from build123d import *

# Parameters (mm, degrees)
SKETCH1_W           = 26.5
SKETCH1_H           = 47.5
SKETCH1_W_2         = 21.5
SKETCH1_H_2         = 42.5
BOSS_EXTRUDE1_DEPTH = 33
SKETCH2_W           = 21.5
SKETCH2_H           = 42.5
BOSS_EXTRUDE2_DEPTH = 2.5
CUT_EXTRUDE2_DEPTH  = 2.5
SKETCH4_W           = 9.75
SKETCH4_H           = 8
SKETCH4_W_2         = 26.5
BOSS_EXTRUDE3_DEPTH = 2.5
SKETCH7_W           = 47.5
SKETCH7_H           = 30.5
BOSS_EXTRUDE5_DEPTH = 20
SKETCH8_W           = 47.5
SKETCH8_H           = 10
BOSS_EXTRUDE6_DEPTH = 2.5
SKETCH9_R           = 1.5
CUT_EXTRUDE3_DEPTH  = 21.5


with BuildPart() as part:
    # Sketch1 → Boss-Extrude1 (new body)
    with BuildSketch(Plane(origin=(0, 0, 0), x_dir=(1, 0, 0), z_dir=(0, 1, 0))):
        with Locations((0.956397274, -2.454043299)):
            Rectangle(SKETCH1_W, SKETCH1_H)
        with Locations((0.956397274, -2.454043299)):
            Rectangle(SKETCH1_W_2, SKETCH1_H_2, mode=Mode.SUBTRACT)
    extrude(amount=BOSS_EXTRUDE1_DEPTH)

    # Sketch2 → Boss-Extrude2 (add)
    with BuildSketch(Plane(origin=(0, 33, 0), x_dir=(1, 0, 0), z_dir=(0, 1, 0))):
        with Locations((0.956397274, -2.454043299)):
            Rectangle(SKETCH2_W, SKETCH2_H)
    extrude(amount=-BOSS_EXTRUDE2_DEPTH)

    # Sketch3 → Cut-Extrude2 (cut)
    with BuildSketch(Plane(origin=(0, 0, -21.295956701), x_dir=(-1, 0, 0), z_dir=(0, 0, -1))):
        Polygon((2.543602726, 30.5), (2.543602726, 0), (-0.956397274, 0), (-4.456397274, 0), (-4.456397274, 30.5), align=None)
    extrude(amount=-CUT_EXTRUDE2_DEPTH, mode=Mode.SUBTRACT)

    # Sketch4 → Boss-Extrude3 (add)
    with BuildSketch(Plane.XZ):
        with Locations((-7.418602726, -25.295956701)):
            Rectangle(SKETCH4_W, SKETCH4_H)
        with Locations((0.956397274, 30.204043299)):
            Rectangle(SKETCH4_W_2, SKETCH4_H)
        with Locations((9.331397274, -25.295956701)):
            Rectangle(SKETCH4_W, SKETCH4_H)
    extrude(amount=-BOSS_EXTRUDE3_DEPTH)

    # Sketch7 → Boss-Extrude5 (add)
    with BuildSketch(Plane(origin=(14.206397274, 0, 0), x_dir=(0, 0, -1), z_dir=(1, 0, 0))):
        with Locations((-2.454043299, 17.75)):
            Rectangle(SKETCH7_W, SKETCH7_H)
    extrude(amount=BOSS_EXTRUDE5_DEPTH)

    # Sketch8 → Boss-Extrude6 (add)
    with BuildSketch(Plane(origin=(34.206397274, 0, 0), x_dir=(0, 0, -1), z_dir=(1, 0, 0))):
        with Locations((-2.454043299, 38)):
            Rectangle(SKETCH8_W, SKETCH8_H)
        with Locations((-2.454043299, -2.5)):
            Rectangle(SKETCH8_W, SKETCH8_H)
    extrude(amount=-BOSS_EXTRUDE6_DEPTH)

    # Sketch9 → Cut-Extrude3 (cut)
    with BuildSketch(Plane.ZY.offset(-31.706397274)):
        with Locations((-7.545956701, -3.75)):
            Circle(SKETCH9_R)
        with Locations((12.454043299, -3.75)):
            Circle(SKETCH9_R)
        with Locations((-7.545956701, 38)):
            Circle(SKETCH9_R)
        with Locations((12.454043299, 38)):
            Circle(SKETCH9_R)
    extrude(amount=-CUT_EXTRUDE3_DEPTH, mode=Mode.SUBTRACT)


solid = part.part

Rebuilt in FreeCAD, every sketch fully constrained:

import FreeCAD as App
import Part
import Sketcher
from FreeCAD import Vector
Q = App.Units.Quantity


def add_polygon(sketch, points):
    """Adds a closed chain of lines whose ends are joined by coincident constraints."""
    first, n = sketch.GeometryCount, len(points)
    for a, b in zip(points, points[1:] + points[:1]):
        sketch.addGeometry(Part.LineSegment(App.Vector(*a, 0), App.Vector(*b, 0)), False)
    for i in range(n):
        sketch.addConstraint(Sketcher.Constraint("Coincident", first + i, 2, first + (i + 1) % n, 1))

doc = App.newDocument("Part")
body = doc.addObject("PartDesign::Body", "Body")

sketch1 = doc.addObject("Sketcher::SketchObject", "Sketch")
body.addObject(sketch1)
sketch1.AttachmentSupport = (doc.XZ_Plane, [""])
sketch1.MapMode = "FlatFace"
add_polygon(sketch1, [(-12.293603, -21.295957), (-12.293603, 26.204043), (14.206397, 26.204043), (14.206397, -21.295957)])
add_polygon(sketch1, [(11.706397, 23.704043), (-9.793603, 23.704043), (-9.793603, -18.795957), (11.706397, -18.795957)])
sketch1.addConstraint(Sketcher.Constraint("Vertical", 0))
sketch1.addConstraint(Sketcher.Constraint("Horizontal", 1))
sketch1.addConstraint(Sketcher.Constraint("Vertical", 2))
sketch1.addConstraint(Sketcher.Constraint("Horizontal", 3))
sketch1.addConstraint(Sketcher.Constraint("Horizontal", 4))
sketch1.addConstraint(Sketcher.Constraint("Vertical", 5))
sketch1.addConstraint(Sketcher.Constraint("Horizontal", 6))
sketch1.addConstraint(Sketcher.Constraint("Vertical", 7))
sketch1.addConstraint(Sketcher.Constraint("DistanceX", 1, 1, 1, 2, Q("26.5 mm")))
sketch1.addConstraint(Sketcher.Constraint("DistanceX", 4, 2, 4, 1, Q("21.5 mm")))
sketch1.addConstraint(Sketcher.Constraint("DistanceY", 0, 1, 0, 2, Q("47.5 mm")))
sketch1.addConstraint(Sketcher.Constraint("DistanceY", 5, 2, 5, 1, Q("42.5 mm")))
sketch1.addConstraint(Sketcher.Constraint("DistanceX", 4, 2, 1, 2, Q("24 mm")))
sketch1.addConstraint(Sketcher.Constraint("DistanceY", 3, 2, 4, 2, Q("45 mm")))
sketch1.addConstraint(Sketcher.Constraint("DistanceX", 0, 2, -1, 1, Q("12.293603 mm")))
sketch1.addConstraint(Sketcher.Constraint("DistanceY", -1, 1, 0, 2, Q("26.204043 mm")))
pad1 = doc.addObject("PartDesign::Pad", "Pad")
body.addObject(pad1)
pad1.Profile = sketch1
pad1.Length = 33
pad1.Reversed = True

sketch2 = doc.addObject("Sketcher::SketchObject", "Sketch001")
body.addObject(sketch2)
sketch2.AttachmentSupport = (doc.XZ_Plane, [""])
sketch2.MapMode = "FlatFace"
sketch2.AttachmentOffset = App.Placement(Vector(0, 0, -33), App.Rotation())
add_polygon(sketch2, [(-9.793603, -18.795957), (-9.793603, 23.704043), (11.706397, 23.704043), (11.706397, -18.795957)])
sketch2.addConstraint(Sketcher.Constraint("Vertical", 0))
sketch2.addConstraint(Sketcher.Constraint("Horizontal", 1))
sketch2.addConstraint(Sketcher.Constraint("Vertical", 2))
sketch2.addConstraint(Sketcher.Constraint("Horizontal", 3))
sketch2.addConstraint(Sketcher.Constraint("DistanceX", 1, 1, 1, 2, Q("21.5 mm")))
sketch2.addConstraint(Sketcher.Constraint("DistanceY", 0, 1, 0, 2, Q("42.5 mm")))
sketch2.addConstraint(Sketcher.Constraint("DistanceX", 0, 2, -1, 1, Q("9.793603 mm")))
sketch2.addConstraint(Sketcher.Constraint("DistanceY", -1, 1, 0, 2, Q("23.704043 mm")))
pad2 = doc.addObject("PartDesign::Pad", "Pad001")
body.addObject(pad2)
pad2.Profile = sketch2
pad2.Length = 2.5

sketch3 = doc.addObject("Sketcher::SketchObject", "Sketch002")
body.addObject(sketch3)
sketch3.AttachmentSupport = (doc.XY_Plane, [""])
sketch3.MapMode = "FlatFace"
sketch3.AttachmentOffset = App.Placement(Vector(0, 0, -21.295957), App.Rotation())
add_polygon(sketch3, [(-2.543603, 0), (-2.543603, 30.5), (4.456397, 30.5), (4.456397, 0)])
sketch3.addConstraint(Sketcher.Constraint("Vertical", 0))
sketch3.addConstraint(Sketcher.Constraint("Horizontal", 1))
sketch3.addConstraint(Sketcher.Constraint("Vertical", 2))
sketch3.addConstraint(Sketcher.Constraint("Horizontal", 3))
sketch3.addConstraint(Sketcher.Constraint("PointOnObject", 2, 2, -1))
sketch3.addConstraint(Sketcher.Constraint("DistanceX", 1, 1, 1, 2, Q("7 mm")))
sketch3.addConstraint(Sketcher.Constraint("DistanceY", 0, 1, 0, 2, Q("30.5 mm")))
sketch3.addConstraint(Sketcher.Constraint("DistanceX", 0, 2, -1, 1, Q("2.543603 mm")))
pocket1 = doc.addObject("PartDesign::Pocket", "Pocket")
body.addObject(pocket1)
pocket1.Profile = sketch3
pocket1.Length = 2.5
pocket1.Reversed = True

sketch4 = doc.addObject("Sketcher::SketchObject", "Sketch003")
body.addObject(sketch4)
sketch4.AttachmentSupport = (doc.XZ_Plane, [""])
sketch4.MapMode = "FlatFace"
add_polygon(sketch4, [(-12.293603, -21.295957), (-12.293603, -29.295957), (-2.543603, -29.295957), (-2.543603, -21.295957)])
add_polygon(sketch4, [(-12.293603, 34.204043), (-12.293603, 26.204043), (14.206397, 26.204043), (14.206397, 34.204043)])
add_polygon(sketch4, [(4.456397, -21.295957), (4.456397, -29.295957), (14.206397, -29.295957), (14.206397, -21.295957)])
sketch4.addConstraint(Sketcher.Constraint("Vertical", 0))
sketch4.addConstraint(Sketcher.Constraint("Horizontal", 1))
sketch4.addConstraint(Sketcher.Constraint("Vertical", 2))
sketch4.addConstraint(Sketcher.Constraint("Horizontal", 3))
sketch4.addConstraint(Sketcher.Constraint("Vertical", 4))
sketch4.addConstraint(Sketcher.Constraint("Horizontal", 5))
sketch4.addConstraint(Sketcher.Constraint("Vertical", 6))
sketch4.addConstraint(Sketcher.Constraint("Horizontal", 7))
sketch4.addConstraint(Sketcher.Constraint("Vertical", 8))
sketch4.addConstraint(Sketcher.Constraint("Horizontal", 9))
sketch4.addConstraint(Sketcher.Constraint("Vertical", 10))
sketch4.addConstraint(Sketcher.Constraint("Horizontal", 11))
sketch4.addConstraint(Sketcher.Constraint("Horizontal", 1, 2, 8, 2))
sketch4.addConstraint(Sketcher.Constraint("Horizontal", 3, 2, 10, 2))
sketch4.addConstraint(Sketcher.Constraint("Vertical", 3, 2, 4, 2))
sketch4.addConstraint(Sketcher.Constraint("Vertical", 6, 2, 9, 2))
sketch4.addConstraint(Sketcher.Constraint("Equal", 3, 9))
sketch4.addConstraint(Sketcher.Constraint("Equal", 2, 4))
sketch4.addConstraint(Sketcher.Constraint("DistanceY", 0, 2, 0, 1, Q("8 mm")))
sketch4.addConstraint(Sketcher.Constraint("DistanceX", 5, 1, 5, 2, Q("26.5 mm")))
sketch4.addConstraint(Sketcher.Constraint("DistanceX", 1, 2, 8, 2, Q("7 mm")))
sketch4.addConstraint(Sketcher.Constraint("DistanceY", 3, 2, 4, 2, Q("47.5 mm")))
sketch4.addConstraint(Sketcher.Constraint("DistanceX", 0, 2, -1, 1, Q("12.293603 mm")))
sketch4.addConstraint(Sketcher.Constraint("DistanceY", 0, 2, -1, 1, Q("29.295957 mm")))
pad3 = doc.addObject("PartDesign::Pad", "Pad002")
body.addObject(pad3)
pad3.Profile = sketch4
pad3.Length = 2.5
pad3.Reversed = True

sketch5 = doc.addObject("Sketcher::SketchObject", "Sketch004")
body.addObject(sketch5)
sketch5.AttachmentSupport = (doc.YZ_Plane, [""])
sketch5.MapMode = "FlatFace"
sketch5.AttachmentOffset = App.Placement(Vector(0, 0, 14.206397), App.Rotation())
add_polygon(sketch5, [(33, 26.204043), (2.5, 26.204043), (2.5, -21.295957), (33, -21.295957)])
sketch5.addConstraint(Sketcher.Constraint("Horizontal", 0))
sketch5.addConstraint(Sketcher.Constraint("Vertical", 1))
sketch5.addConstraint(Sketcher.Constraint("Horizontal", 2))
sketch5.addConstraint(Sketcher.Constraint("Vertical", 3))
sketch5.addConstraint(Sketcher.Constraint("DistanceX", 0, 2, 0, 1, Q("30.5 mm")))
sketch5.addConstraint(Sketcher.Constraint("DistanceY", 1, 2, 1, 1, Q("47.5 mm")))
sketch5.addConstraint(Sketcher.Constraint("DistanceX", -1, 1, 2, 2, Q("33 mm")))
sketch5.addConstraint(Sketcher.Constraint("DistanceY", -1, 1, 0, 2, Q("26.204043 mm")))
pad4 = doc.addObject("PartDesign::Pad", "Pad003")
body.addObject(pad4)
pad4.Profile = sketch5
pad4.Length = 20

sketch6 = doc.addObject("Sketcher::SketchObject", "Sketch005")
body.addObject(sketch6)
sketch6.AttachmentSupport = (doc.YZ_Plane, [""])
sketch6.MapMode = "FlatFace"
sketch6.AttachmentOffset = App.Placement(Vector(0, 0, 34.206397), App.Rotation())
add_polygon(sketch6, [(43, 26.204043), (33, 26.204043), (33, -21.295957), (43, -21.295957)])
add_polygon(sketch6, [(2.5, 26.204043), (-7.5, 26.204043), (-7.5, -21.295957), (2.5, -21.295957)])
sketch6.addConstraint(Sketcher.Constraint("Horizontal", 0))
sketch6.addConstraint(Sketcher.Constraint("Vertical", 1))
sketch6.addConstraint(Sketcher.Constraint("Horizontal", 2))
sketch6.addConstraint(Sketcher.Constraint("Vertical", 3))
sketch6.addConstraint(Sketcher.Constraint("Horizontal", 4))
sketch6.addConstraint(Sketcher.Constraint("Vertical", 5))
sketch6.addConstraint(Sketcher.Constraint("Horizontal", 6))
sketch6.addConstraint(Sketcher.Constraint("Vertical", 7))
sketch6.addConstraint(Sketcher.Constraint("Horizontal", 3, 2, 4, 2))
sketch6.addConstraint(Sketcher.Constraint("Horizontal", 2, 2, 5, 2))
sketch6.addConstraint(Sketcher.Constraint("Equal", 2, 4))
sketch6.addConstraint(Sketcher.Constraint("DistanceX", 0, 2, 0, 1, Q("10 mm")))
sketch6.addConstraint(Sketcher.Constraint("DistanceY", 1, 2, 1, 1, Q("47.5 mm")))
sketch6.addConstraint(Sketcher.Constraint("DistanceX", -1, 1, 0, 2, Q("33 mm")))
sketch6.addConstraint(Sketcher.Constraint("DistanceX", 4, 2, -1, 1, Q("7.5 mm")))
sketch6.addConstraint(Sketcher.Constraint("DistanceY", -1, 1, 0, 2, Q("26.204043 mm")))
pad5 = doc.addObject("PartDesign::Pad", "Pad004")
body.addObject(pad5)
pad5.Profile = sketch6
pad5.Length = 2.5
pad5.Reversed = True

sketch7 = doc.addObject("Sketcher::SketchObject", "Sketch006")
body.addObject(sketch7)
sketch7.AttachmentSupport = (doc.YZ_Plane, [""])
sketch7.MapMode = "FlatFace"
sketch7.AttachmentOffset = App.Placement(Vector(0, 0, 31.706397), App.Rotation())
sketch7.addGeometry(Part.Circle(Vector(-3.75, -7.545957, 0), Vector(0, 0, 1), 1.5), False)
sketch7.addGeometry(Part.Circle(Vector(-3.75, 12.454043, 0), Vector(0, 0, 1), 1.5), False)
sketch7.addGeometry(Part.Circle(Vector(38, -7.545957, 0), Vector(0, 0, 1), 1.5), False)
sketch7.addGeometry(Part.Circle(Vector(38, 12.454043, 0), Vector(0, 0, 1), 1.5), False)
sketch7.addConstraint(Sketcher.Constraint("Equal", 0, 1))
sketch7.addConstraint(Sketcher.Constraint("Equal", 1, 2))
sketch7.addConstraint(Sketcher.Constraint("Equal", 2, 3))
sketch7.addConstraint(Sketcher.Constraint("Horizontal", 0, 3, 2, 3))
sketch7.addConstraint(Sketcher.Constraint("Horizontal", 1, 3, 3, 3))
sketch7.addConstraint(Sketcher.Constraint("Vertical", 0, 3, 1, 3))
sketch7.addConstraint(Sketcher.Constraint("Vertical", 2, 3, 3, 3))
sketch7.addConstraint(Sketcher.Constraint("Diameter", 0, Q("3 mm")))
sketch7.addConstraint(Sketcher.Constraint("DistanceX", -1, 1, 2, 3, Q("38 mm")))
sketch7.addConstraint(Sketcher.Constraint("DistanceY", 0, 3, 1, 3, Q("20 mm")))
sketch7.addConstraint(Sketcher.Constraint("DistanceX", 0, 3, -1, 1, Q("3.75 mm")))
sketch7.addConstraint(Sketcher.Constraint("DistanceY", 0, 3, -1, 1, Q("7.545957 mm")))
pocket2 = doc.addObject("PartDesign::Pocket", "Pocket001")
body.addObject(pocket2)
pocket2.Profile = sketch7
pocket2.Length = 21.5
pocket2.Reversed = True

doc.recompute()
